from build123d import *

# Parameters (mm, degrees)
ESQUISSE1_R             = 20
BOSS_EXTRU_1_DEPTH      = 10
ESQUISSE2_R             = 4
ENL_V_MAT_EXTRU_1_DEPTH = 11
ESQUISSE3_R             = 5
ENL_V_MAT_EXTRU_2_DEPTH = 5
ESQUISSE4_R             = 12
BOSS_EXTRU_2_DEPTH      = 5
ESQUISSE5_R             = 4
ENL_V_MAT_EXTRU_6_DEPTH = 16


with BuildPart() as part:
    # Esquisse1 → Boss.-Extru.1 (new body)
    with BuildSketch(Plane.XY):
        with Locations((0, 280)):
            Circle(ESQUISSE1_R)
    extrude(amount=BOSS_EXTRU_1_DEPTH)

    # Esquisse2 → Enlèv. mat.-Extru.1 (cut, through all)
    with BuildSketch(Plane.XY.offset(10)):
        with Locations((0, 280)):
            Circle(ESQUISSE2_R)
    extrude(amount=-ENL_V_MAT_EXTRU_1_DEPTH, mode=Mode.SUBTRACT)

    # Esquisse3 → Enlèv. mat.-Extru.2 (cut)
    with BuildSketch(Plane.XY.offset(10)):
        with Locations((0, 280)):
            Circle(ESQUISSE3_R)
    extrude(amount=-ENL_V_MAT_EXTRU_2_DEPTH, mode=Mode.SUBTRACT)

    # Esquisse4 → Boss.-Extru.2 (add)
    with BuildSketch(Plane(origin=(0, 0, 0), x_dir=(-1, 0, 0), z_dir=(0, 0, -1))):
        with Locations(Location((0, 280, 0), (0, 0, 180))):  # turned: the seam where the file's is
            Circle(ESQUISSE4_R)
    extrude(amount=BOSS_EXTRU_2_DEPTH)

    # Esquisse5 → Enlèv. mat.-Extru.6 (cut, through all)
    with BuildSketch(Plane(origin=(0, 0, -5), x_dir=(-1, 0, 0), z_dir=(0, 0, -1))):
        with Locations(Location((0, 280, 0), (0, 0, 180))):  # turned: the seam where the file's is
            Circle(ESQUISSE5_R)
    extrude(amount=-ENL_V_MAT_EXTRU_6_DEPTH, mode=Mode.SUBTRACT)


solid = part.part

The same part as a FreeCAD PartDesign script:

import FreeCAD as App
import Part
import Sketcher
Q = App.Units.Quantity

doc = App.newDocument("Part")
body = doc.addObject("PartDesign::Body", "Body")

# Sketch on XY plane
sketch1 = body.newObject("Sketcher::SketchObject", "Sketch")
sketch1.AttachmentSupport = (doc.getObject("XY_Plane"), [""])
sketch1.MapMode = "FlatFace"
sketch1.addGeometry(Part.Circle(App.Vector(0, 280, 0), App.Vector(0, 0, 1), 20), False)
sketch1.addConstraint([
    Sketcher.Constraint("PointOnObject", 0, 3, -2),
    Sketcher.Constraint("Diameter", 0, Q("40 mm")),
    Sketcher.Constraint("DistanceY", -1, 1, 0, 3, Q("280 mm")),
])
pad1 = body.newObject("PartDesign::Pad", "Pad")
pad1.Profile = sketch1
pad1.Length = 10

# Sketch on XY plane
sketch2 = body.newObject("Sketcher::SketchObject", "Sketch001")
sketch2.AttachmentSupport = (doc.getObject("XY_Plane"), [""])
sketch2.MapMode = "FlatFace"
sketch2.AttachmentOffset = App.Placement(App.Vector(0, 0, 10), App.Rotation())
sketch2.addGeometry(Part.Circle(App.Vector(0, 280, 0), App.Vector(0, 0, 1), 4), False)
sketch2.addConstraint([
    Sketcher.Constraint("PointOnObject", 0, 3, -2),
    Sketcher.Constraint("Diameter", 0, Q("8 mm")),
    Sketcher.Constraint("DistanceY", -1, 1, 0, 3, Q("280 mm")),
])
pocket1 = body.newObject("PartDesign::Pocket", "Pocket")
pocket1.Profile = sketch2
pocket1.Type = "ThroughAll"

# Sketch on XY plane
sketch3 = body.newObject("Sketcher::SketchObject", "Sketch002")
sketch3.AttachmentSupport = (doc.getObject("XY_Plane"), [""])
sketch3.MapMode = "FlatFace"
sketch3.AttachmentOffset = App.Placement(App.Vector(0, 0, 10), App.Rotation())
sketch3.addGeometry(Part.Circle(App.Vector(0, 280, 0), App.Vector(0, 0, 1), 5), False)
sketch3.addConstraint([
    Sketcher.Constraint("PointOnObject", 0, 3, -2),
    Sketcher.Constraint("Diameter", 0, Q("10 mm")),
    Sketcher.Constraint("DistanceY", -1, 1, 0, 3, Q("280 mm")),
])
pocket2 = body.newObject("PartDesign::Pocket", "Pocket001")
pocket2.Profile = sketch3
pocket2.Length = 5

# Sketch on XY plane
sketch4 = body.newObject("Sketcher::SketchObject", "Sketch003")
sketch4.AttachmentSupport = (doc.getObject("XY_Plane"), [""])
sketch4.MapMode = "FlatFace"
sketch4.addGeometry(Part.Circle(App.Vector(0, 280, 0), App.Vector(0, 0, 1), 12), False)
sketch4.addConstraint([
    Sketcher.Constraint("PointOnObject", 0, 3, -2),
    Sketcher.Constraint("Diameter", 0, Q("24 mm")),
    Sketcher.Constraint("DistanceY", -1, 1, 0, 3, Q("280 mm")),
])
pad2 = body.newObject("PartDesign::Pad", "Pad001")
pad2.Profile = sketch4
pad2.Length = 5
pad2.Reversed = True

# Sketch on XY plane
sketch5 = body.newObject("Sketcher::SketchObject", "Sketch004")
sketch5.AttachmentSupport = (doc.getObject("XY_Plane"), [""])
sketch5.MapMode = "FlatFace"
sketch5.AttachmentOffset = App.Placement(App.Vector(0, 0, -5), App.Rotation())
sketch5.addGeometry(Part.Circle(App.Vector(0, 280, 0), App.Vector(0, 0, 1), 4), False)
sketch5.addConstraint([
    Sketcher.Constraint("PointOnObject", 0, 3, -2),
    Sketcher.Constraint("Diameter", 0, Q("8 mm")),
    Sketcher.Constraint("DistanceY", -1, 1, 0, 3, Q("280 mm")),
])
pocket3 = body.newObject("PartDesign::Pocket", "Pocket002")
pocket3.Profile = sketch5
pocket3.Type = "ThroughAll"
pocket3.Reversed = True

doc.recompute()
